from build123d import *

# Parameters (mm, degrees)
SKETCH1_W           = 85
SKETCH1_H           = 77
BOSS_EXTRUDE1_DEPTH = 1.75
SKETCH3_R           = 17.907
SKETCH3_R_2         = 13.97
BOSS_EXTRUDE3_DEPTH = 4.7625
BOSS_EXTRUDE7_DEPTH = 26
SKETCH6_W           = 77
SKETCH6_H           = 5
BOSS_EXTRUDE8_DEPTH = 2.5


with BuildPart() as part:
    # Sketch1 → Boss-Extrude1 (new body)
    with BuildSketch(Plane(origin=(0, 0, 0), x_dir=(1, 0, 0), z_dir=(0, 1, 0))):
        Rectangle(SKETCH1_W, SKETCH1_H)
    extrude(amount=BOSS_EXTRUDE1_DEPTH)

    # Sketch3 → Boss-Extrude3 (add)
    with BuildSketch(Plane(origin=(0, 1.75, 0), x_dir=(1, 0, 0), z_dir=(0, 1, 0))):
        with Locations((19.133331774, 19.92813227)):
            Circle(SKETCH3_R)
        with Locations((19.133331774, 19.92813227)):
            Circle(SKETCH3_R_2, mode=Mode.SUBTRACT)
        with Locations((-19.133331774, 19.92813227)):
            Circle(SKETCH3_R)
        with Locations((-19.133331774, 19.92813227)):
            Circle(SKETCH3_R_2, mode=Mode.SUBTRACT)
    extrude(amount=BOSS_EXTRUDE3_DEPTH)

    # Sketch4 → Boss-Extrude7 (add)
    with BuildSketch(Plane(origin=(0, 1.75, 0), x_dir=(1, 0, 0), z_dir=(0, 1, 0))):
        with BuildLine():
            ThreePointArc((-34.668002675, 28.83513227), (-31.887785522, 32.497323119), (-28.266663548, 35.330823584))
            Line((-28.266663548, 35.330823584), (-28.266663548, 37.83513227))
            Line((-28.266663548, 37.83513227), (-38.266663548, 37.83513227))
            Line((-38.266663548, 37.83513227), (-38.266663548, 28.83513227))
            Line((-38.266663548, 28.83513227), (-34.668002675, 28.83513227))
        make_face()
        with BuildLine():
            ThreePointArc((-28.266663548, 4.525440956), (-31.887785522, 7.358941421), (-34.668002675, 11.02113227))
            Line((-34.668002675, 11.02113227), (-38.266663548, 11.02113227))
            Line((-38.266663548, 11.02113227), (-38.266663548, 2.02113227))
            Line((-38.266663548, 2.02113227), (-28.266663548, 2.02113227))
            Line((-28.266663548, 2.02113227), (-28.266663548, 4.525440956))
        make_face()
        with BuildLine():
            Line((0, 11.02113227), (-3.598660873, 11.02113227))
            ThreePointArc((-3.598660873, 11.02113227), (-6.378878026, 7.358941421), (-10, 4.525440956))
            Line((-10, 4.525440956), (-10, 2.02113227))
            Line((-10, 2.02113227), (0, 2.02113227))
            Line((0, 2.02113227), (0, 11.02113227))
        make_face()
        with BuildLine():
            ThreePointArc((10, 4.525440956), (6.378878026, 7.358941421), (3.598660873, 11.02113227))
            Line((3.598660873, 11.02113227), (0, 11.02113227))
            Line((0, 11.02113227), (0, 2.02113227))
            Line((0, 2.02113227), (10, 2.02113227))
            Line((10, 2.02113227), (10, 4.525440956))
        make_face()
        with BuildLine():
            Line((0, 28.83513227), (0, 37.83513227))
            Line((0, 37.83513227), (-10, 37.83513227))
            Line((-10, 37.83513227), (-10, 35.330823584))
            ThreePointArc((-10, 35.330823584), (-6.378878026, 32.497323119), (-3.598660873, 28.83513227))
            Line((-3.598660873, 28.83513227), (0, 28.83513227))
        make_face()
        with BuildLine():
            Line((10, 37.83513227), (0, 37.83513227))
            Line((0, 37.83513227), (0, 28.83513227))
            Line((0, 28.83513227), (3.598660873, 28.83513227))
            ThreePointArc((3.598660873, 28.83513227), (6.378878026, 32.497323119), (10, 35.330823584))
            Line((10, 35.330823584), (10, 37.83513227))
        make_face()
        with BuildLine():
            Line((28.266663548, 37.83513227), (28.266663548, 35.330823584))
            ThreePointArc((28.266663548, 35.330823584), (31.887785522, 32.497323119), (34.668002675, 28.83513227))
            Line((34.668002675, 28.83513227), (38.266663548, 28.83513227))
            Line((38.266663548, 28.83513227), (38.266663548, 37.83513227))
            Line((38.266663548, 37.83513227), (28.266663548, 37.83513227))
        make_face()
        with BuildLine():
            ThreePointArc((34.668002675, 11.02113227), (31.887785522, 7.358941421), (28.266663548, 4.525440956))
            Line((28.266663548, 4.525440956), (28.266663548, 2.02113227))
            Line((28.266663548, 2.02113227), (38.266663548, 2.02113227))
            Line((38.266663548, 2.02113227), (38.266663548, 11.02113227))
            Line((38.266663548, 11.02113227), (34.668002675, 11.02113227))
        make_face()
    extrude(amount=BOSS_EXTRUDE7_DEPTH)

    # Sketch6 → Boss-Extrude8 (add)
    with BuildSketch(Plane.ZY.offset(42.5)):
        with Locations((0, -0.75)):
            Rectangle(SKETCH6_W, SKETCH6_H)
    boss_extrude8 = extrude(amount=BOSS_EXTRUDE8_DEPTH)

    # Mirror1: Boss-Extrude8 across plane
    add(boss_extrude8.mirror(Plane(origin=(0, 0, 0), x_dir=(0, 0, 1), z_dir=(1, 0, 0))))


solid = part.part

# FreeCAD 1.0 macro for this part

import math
import FreeCAD as App
import Part
import Sketcher
Q = App.Units.Quantity


def add_polygon(sketch, points):
    """Adds a closed chain of lines whose ends are joined by coincident constraints."""
    first, n = sketch.GeometryCount, len(points)
    for a, b in zip(points, points[1:] + points[:1]):
        sketch.addGeometry(Part.LineSegment(App.Vector(*a, 0), App.Vector(*b, 0)), False)
    for i in range(n):
        sketch.addConstraint(Sketcher.Constraint("Coincident", first + i, 2, first + (i + 1) % n, 1))

doc = App.newDocument("Part")
body = doc.addObject("PartDesign::Body", "Body")

# Sketch on XZ plane
sketch1 = body.newObject("Sketcher::SketchObject", "Sketch")
sketch1.AttachmentSupport = (doc.getObject("XZ_Plane"), [""])
sketch1.MapMode = "FlatFace"
add_polygon(sketch1, [(-42, -38), (-42, 38), (42, 38), (42, -38)])  # lines 0-3
sketch1.addConstraint(Sketcher.Constraint("Vertical", 0))
sketch1.addConstraint(Sketcher.Constraint("Horizontal", 1))
sketch1.addConstraint(Sketcher.Constraint("Vertical", 2))
sketch1.addConstraint(Sketcher.Constraint("Horizontal", 3))
sketch1.addConstraint(Sketcher.Constraint("Symmetric", 0, 2, 2, 2, -1, 1))
sketch1.addConstraint(Sketcher.Constraint("DistanceX", 1, 1, 1, 2, Q("85 mm")))
sketch1.addConstraint(Sketcher.Constraint("DistanceY", 0, 1, 0, 2, Q("77 mm")))
pad1 = body.newObject("PartDesign::Pad", "Pad")
pad1.Profile = sketch1
pad1.Length = 1.75
pad1.Reversed = True

# Sketch on XZ plane
sketch2 = body.newObject("Sketcher::SketchObject", "Sketch001")
sketch2.AttachmentSupport = (doc.getObject("XZ_Plane"), [""])
sketch2.MapMode = "FlatFace"
sketch2.AttachmentOffset = App.Placement(App.Vector(0, 0, -1.75), App.Rotation())
sketch2.addGeometry(Part.Circle(App.Vector(19, -20, 0), App.Vector(0, 0, 1), 18), False)
sketch2.addGeometry(Part.Circle(App.Vector(19, -20, 0), App.Vector(0, 0, 1), 14), False)
sketch2.addGeometry(Part.Circle(App.Vector(-19, -20, 0), App.Vector(0, 0, 1), 18), False)
sketch2.addGeometry(Part.Circle(App.Vector(-19, -20, 0), App.Vector(0, 0, 1), 14), False)
sketch2.addConstraint(Sketcher.Constraint("Coincident", 1, 3, 0, 3))
sketch2.addConstraint(Sketcher.Constraint("Coincident", 3, 3, 2, 3))
sketch2.addConstraint(Sketcher.Constraint("Equal", 0, 2))
sketch2.addConstraint(Sketcher.Constraint("Equal", 1, 3))
sketch2.addConstraint(Sketcher.Constraint("Symmetric", 0, 3, 2, 3, -2))
sketch2.addConstraint(Sketcher.Constraint("Diameter", 1, Q("27.94 mm")))
sketch2.addConstraint(Sketcher.Constraint("Diameter", 0, Q("35.814 mm")))
sketch2.addConstraint(Sketcher.Constraint("DistanceX", -1, 1, 0, 3, Q("19.133332 mm")))
sketch2.addConstraint(Sketcher.Constraint("DistanceY", 0, 3, -1, 1, Q("19.928132 mm")))
pad2 = body.newObject("PartDesign::Pad", "Pad001")
pad2.Profile = sketch2
pad2.Length = 4.7625
pad2.Reversed = True

# Sketch on XZ plane
sketch3 = body.newObject("Sketcher::SketchObject", "Sketch002")
sketch3.AttachmentSupport = (doc.getObject("XZ_Plane"), [""])
sketch3.MapMode = "FlatFace"
sketch3.AttachmentOffset = App.Placement(App.Vector(0, 0, -1.75), App.Rotation())
sketch3.addGeometry(Part.ArcOfCircle(Part.Circle(App.Vector(-19.1, -19.9, 0), App.Vector(0, 0, 1), 17.9), math.radians(-150), math.radians(-121)), False)
sketch3.addGeometry(Part.LineSegment(App.Vector(-28.3, -35.3, 0), App.Vector(-28.3, -37.8, 0)), False)
sketch3.addGeometry(Part.LineSegment(App.Vector(-28.3, -37.8, 0), App.Vector(-38.3, -37.8, 0)), False)
sketch3.addGeometry(Part.LineSegment(App.Vector(-38.3, -37.8, 0), App.Vector(-38.3, -28.8, 0)), False)
sketch3.addGeometry(Part.LineSegment(App.Vector(-38.3, -28.8, 0), App.Vector(-34.7, -28.8, 0)), False)
sketch3.addGeometry(Part.ArcOfCircle(Part.Circle(App.Vector(-19.1, -19.9, 0), App.Vector(0, 0, 1), 17.9), math.radians(121), math.radians(150)), False)
sketch3.addGeometry(Part.LineSegment(App.Vector(-34.7, -11, 0), App.Vector(-38.3, -11, 0)), False)
sketch3.addGeometry(Part.LineSegment(App.Vector(-38.3, -11, 0), App.Vector(-38.3, -2, 0)), False)
sketch3.addGeometry(Part.LineSegment(App.Vector(-38.3, -2, 0), App.Vector(-28.3, -2, 0)), False)
sketch3.addGeometry(Part.LineSegment(App.Vector(-28.3, -2, 0), App.Vector(-28.3, -4.5, 0)), False)
sketch3.addGeometry(Part.ArcOfCircle(Part.Circle(App.Vector(-19.1, -19.9, 0), App.Vector(0, 0, 1), 17.9), math.radians(30), math.radians(59)), False)
sketch3.addGeometry(Part.LineSegment(App.Vector(-10, -4.5, 0), App.Vector(-10, -2, 0)), False)
sketch3.addGeometry(Part.LineSegment(App.Vector(-10, -2, 0), App.Vector(10, -2, 0)), False)
sketch3.addGeometry(Part.LineSegment(App.Vector(10, -2, 0), App.Vector(10, -4.5, 0)), False)
sketch3.addGeometry(Part.ArcOfCircle(Part.Circle(App.Vector(19.1, -19.9, 0), App.Vector(0, 0, 1), 17.9), math.radians(121), math.radians(150)), False)
sketch3.addGeometry(Part.LineSegment(App.Vector(3.6, -11, 0), App.Vector(-3.6, -11, 0)), False)
sketch3.addGeometry(Part.LineSegment(App.Vector(-10, -37.8, 0), App.Vector(-10, -35.3, 0)), False)
sketch3.addGeometry(Part.ArcOfCircle(Part.Circle(App.Vector(-19.1, -19.9, 0), App.Vector(0, 0, 1), 17.9), math.radians(-59), math.radians(-30)), False)
sketch3.addGeometry(Part.LineSegment(App.Vector(-3.6, -28.8, 0), App.Vector(3.6, -28.8, 0)), False)
sketch3.addGeometry(Part.ArcOfCircle(Part.Circle(App.Vector(19.1, -19.9, 0), App.Vector(0, 0, 1), 17.9), math.radians(-150), math.radians(-121)), False)
sketch3.addGeometry(Part.LineSegment(App.Vector(10, -35.3, 0), App.Vector(10, -37.8, 0)), False)
sketch3.addGeometry(Part.LineSegment(App.Vector(10, -37.8, 0), App.Vector(-10, -37.8, 0)), False)
sketch3.addGeometry(Part.LineSegment(App.Vector(28.3, -37.8, 0), App.Vector(28.3, -35.3, 0)), False)
sketch3.addGeometry(Part.ArcOfCircle(Part.Circle(App.Vector(19.1, -19.9, 0), App.Vector(0, 0, 1), 17.9), math.radians(-59), math.radians(-30)), False)
sketch3.addGeometry(Part.LineSegment(App.Vector(34.7, -28.8, 0), App.Vector(38.3, -28.8, 0)), False)
sketch3.addGeometry(Part.LineSegment(App.Vector(38.3, -28.8, 0), App.Vector(38.3, -37.8, 0)), False)
sketch3.addGeometry(Part.LineSegment(App.Vector(38.3, -37.8, 0), App.Vector(28.3, -37.8, 0)), False)
sketch3.addGeometry(Part.ArcOfCircle(Part.Circle(App.Vector(19.1, -19.9, 0), App.Vector(0, 0, 1), 17.9), math.radians(30), math.radians(59)), False)
sketch3.addGeometry(Part.LineSegment(App.Vector(28.3, -4.5, 0), App.Vector(28.3, -2, 0)), False)
sketch3.addGeometry(Part.LineSegment(App.Vector(28.3, -2, 0), App.Vector(38.3, -2, 0)), False)
sketch3.addGeometry(Part.LineSegment(App.Vector(38.3, -2, 0), App.Vector(38.3, -11, 0)), False)
sketch3.addGeometry(Part.LineSegment(App.Vector(38.3, -11, 0), App.Vector(34.7, -11, 0)), False)
sketch3.addConstraint(Sketcher.Constraint("Coincident", 0, 2, 1, 1))
sketch3.addConstraint(Sketcher.Constraint("Coincident", 1, 2, 2, 1))
sketch3.addConstraint(Sketcher.Constraint("Coincident", 2, 2, 3, 1))
sketch3.addConstraint(Sketcher.Constraint("Coincident", 3, 2, 4, 1))
sketch3.addConstraint(Sketcher.Constraint("Coincident", 4, 2, 0, 1))
sketch3.addConstraint(Sketcher.Constraint("Coincident", 5, 2, 6, 1))
sketch3.addConstraint(Sketcher.Constraint("Coincident", 6, 2, 7, 1))
sketch3.addConstraint(Sketcher.Constraint("Coincident", 7, 2, 8, 1))
sketch3.addConstraint(Sketcher.Constraint("Coincident", 8, 2, 9, 1))
sketch3.addConstraint(Sketcher.Constraint("Coincident", 9, 2, 5, 1))
sketch3.addConstraint(Sketcher.Constraint("Coincident", 10, 2, 11, 1))
sketch3.addConstraint(Sketcher.Constraint("Coincident", 11, 2, 12, 1))
sketch3.addConstraint(Sketcher.Constraint("Coincident", 12, 2, 13, 1))
sketch3.addConstraint(Sketcher.Constraint("Coincident", 13, 2, 14, 1))
sketch3.addConstraint(Sketcher.Constraint("Coincident", 14, 2, 15, 1))
sketch3.addConstraint(Sketcher.Constraint("Coincident", 15, 2, 10, 1))
sketch3.addConstraint(Sketcher.Constraint("Coincident", 16, 2, 17, 1))
sketch3.addConstraint(Sketcher.Constraint("Coincident", 17, 2, 18, 1))
sketch3.addConstraint(Sketcher.Constraint("Coincident", 18, 2, 19, 1))
sketch3.addConstraint(Sketcher.Constraint("Coincident", 19, 2, 20, 1))
sketch3.addConstraint(Sketcher.Constraint("Coincident", 20, 2, 21, 1))
sketch3.addConstraint(Sketcher.Constraint("Coincident", 21, 2, 16, 1))
sketch3.addConstraint(Sketcher.Constraint("Coincident", 22, 2, 23, 1))
sketch3.addConstraint(Sketcher.Constraint("Coincident", 23, 2, 24, 1))
sketch3.addConstraint(Sketcher.Constraint("Coincident", 24, 2, 25, 1))
sketch3.addConstraint(Sketcher.Constraint("Coincident", 25, 2, 26, 1))
sketch3.addConstraint(Sketcher.Constraint("Coincident", 26, 2, 22, 1))
sketch3.addConstraint(Sketcher.Constraint("Coincident", 27, 2, 28, 1))
sketch3.addConstraint(Sketcher.Constraint("Coincident", 28, 2, 29, 1))
sketch3.addConstraint(Sketcher.Constraint("Coincident", 29, 2, 30, 1))
sketch3.addConstraint(Sketcher.Constraint("Coincident", 30, 2, 31, 1))
sketch3.addConstraint(Sketcher.Constraint("Coincident", 31, 2, 27, 1))
sketch3.addConstraint(Sketcher.Constraint("Vertical", 1))
sketch3.addConstraint(Sketcher.Constraint("Horizontal", 2))
sketch3.addConstraint(Sketcher.Constraint("Vertical", 3))
sketch3.addConstraint(Sketcher.Constraint("Horizontal", 4))
sketch3.addConstraint(Sketcher.Constraint("Horizontal", 6))
sketch3.addConstraint(Sketcher.Constraint("Vertical", 7))
sketch3.addConstraint(Sketcher.Constraint("Horizontal", 8))
sketch3.addConstraint(Sketcher.Constraint("Vertical", 9))
sketch3.addConstraint(Sketcher.Constraint("Vertical", 11))
sketch3.addConstraint(Sketcher.Constraint("Horizontal", 12))
sketch3.addConstraint(Sketcher.Constraint("Vertical", 13))
sketch3.addConstraint(Sketcher.Constraint("Horizontal", 15))
sketch3.addConstraint(Sketcher.Constraint("Vertical", 16))
sketch3.addConstraint(Sketcher.Constraint("Horizontal", 18))
sketch3.addConstraint(Sketcher.Constraint("Vertical", 20))
sketch3.addConstraint(Sketcher.Constraint("Horizontal", 21))
sketch3.addConstraint(Sketcher.Constraint("Vertical", 22))
sketch3.addConstraint(Sketcher.Constraint("Horizontal", 24))
sketch3.addConstraint(Sketcher.Constraint("Vertical", 25))
sketch3.addConstraint(Sketcher.Constraint("Horizontal", 26))
sketch3.addConstraint(Sketcher.Constraint("Vertical", 28))
sketch3.addConstraint(Sketcher.Constraint("Horizontal", 29))
sketch3.addConstraint(Sketcher.Constraint("Vertical", 30))
sketch3.addConstraint(Sketcher.Constraint("Horizontal", 31))
sketch3.addConstraint(Sketcher.Constraint("Coincident", 5, 3, 0, 3))
sketch3.addConstraint(Sketcher.Constraint("Coincident", 10, 3, 0, 3))
sketch3.addConstraint(Sketcher.Constraint("Coincident", 17, 3, 0, 3))
sketch3.addConstraint(Sketcher.Constraint("Coincident", 19, 3, 14, 3))
sketch3.addConstraint(Sketcher.Constraint("Coincident", 23, 3, 14, 3))
sketch3.addConstraint(Sketcher.Constraint("Coincident", 27, 3, 14, 3))
sketch3.addConstraint(Sketcher.Constraint("Equal", 0, 5))
sketch3.addConstraint(Sketcher.Constraint("Equal", 5, 10))
sketch3.addConstraint(Sketcher.Constraint("Equal", 10, 14))
sketch3.addConstraint(Sketcher.Constraint("Equal", 14, 17))
sketch3.addConstraint(Sketcher.Constraint("Equal", 17, 19))
sketch3.addConstraint(Sketcher.Constraint("Equal", 19, 23))
sketch3.addConstraint(Sketcher.Constraint("Equal", 23, 27))
sketch3.addConstraint(Sketcher.Constraint("Symmetric", 0, 3, 14, 3, -2))
sketch3.addConstraint(Sketcher.Constraint("Symmetric", 3, 2, 24, 2, -2))
sketch3.addConstraint(Sketcher.Constraint("Symmetric", 1, 2, 26, 2, -2))
sketch3.addConstraint(Sketcher.Constraint("Symmetric", 8, 2, 28, 2, -2))
sketch3.addConstraint(Sketcher.Constraint("Symmetric", 6, 2, 30, 2, -2))
sketch3.addConstraint(Sketcher.Constraint("Horizontal", 9, 2, 10, 2))
sketch3.addConstraint(Sketcher.Constraint("Horizontal", 8, 2, 11, 2))
sketch3.addConstraint(Sketcher.Constraint("Horizontal", 10, 2, 13, 2))
sketch3.addConstraint(Sketcher.Constraint("Horizontal", 6, 2, 14, 2))
sketch3.addConstraint(Sketcher.Constraint("Horizontal", 0, 2, 16, 2))
sketch3.addConstraint(Sketcher.Constraint("Horizontal", 4, 2, 17, 2))
sketch3.addConstraint(Sketcher.Constraint("Horizontal", 16, 2, 19, 2))
sketch3.addConstraint(Sketcher.Constraint("Horizontal", 2, 2, 20, 2))
sketch3.addConstraint(Sketcher.Constraint("Vertical", 4, 2, 5, 2))
sketch3.addConstraint(Sketcher.Constraint("Vertical", 3, 2, 6, 2))
sketch3.addConstraint(Sketcher.Constraint("Vertical", 1, 2, 8, 2))
sketch3.addConstraint(Sketcher.Constraint("Equal", 3, 7))
sketch3.addConstraint(Sketcher.Constraint("DistanceX", 2, 2, 2, 1, Q("10 mm")))
sketch3.addConstraint(Sketcher.Constraint("DistanceX", 12, 1, 12, 2, Q("20 mm")))
sketch3.addConstraint(Sketcher.Constraint("DistanceY", 3, 1, 3, 2, Q("9 mm")))
sketch3.addConstraint(Sketcher.Constraint("Radius", 0, Q("17.907 mm")))
sketch3.addConstraint(Sketcher.Constraint("DistanceY", 1, 2, 0, 3, Q("17.907 mm")))
sketch3.addConstraint(Sketcher.Constraint("DistanceX", 4, 1, 4, 2, Q("3.598661 mm")))
sketch3.addConstraint(Sketcher.Constraint("DistanceY", 9, 2, -1, 1, Q("4.525441 mm")))
pad3 = body.newObject("PartDesign::Pad", "Pad002")
pad3.Profile = sketch3
pad3.Length = 26
pad3.Reversed = True

# Sketch on YZ plane
sketch4 = body.newObject("Sketcher::SketchObject", "Sketch003")
sketch4.AttachmentSupport = (doc.getObject("YZ_Plane"), [""])
sketch4.MapMode = "FlatFace"
sketch4.AttachmentOffset = App.Placement(App.Vector(0, 0, -42.5), App.Rotation())
add_polygon(sketch4, [(2, -38), (-3, -38), (-3, 38), (2, 38)])  # lines 0-3
sketch4.addConstraint(Sketcher.Constraint("Horizontal", 0))
sketch4.addConstraint(Sketcher.Constraint("Vertical", 1))
sketch4.addConstraint(Sketcher.Constraint("Horizontal", 2))
sketch4.addConstraint(Sketcher.Constraint("Vertical", 3))
sketch4.addConstraint(Sketcher.Constraint("DistanceX", 0, 2, 0, 1, Q("5 mm")))
sketch4.addConstraint(Sketcher.Constraint("DistanceY", 1, 1, 1, 2, Q("77 mm")))
sketch4.addConstraint(Sketcher.Constraint("DistanceY", 0, 2, -1, 1, Q("38.5 mm")))
sketch4.addConstraint(Sketcher.Constraint("DistanceX", 0, 2, -1, 1, Q("3.25 mm")))
pad4 = body.newObject("PartDesign::Pad", "Pad003")
pad4.Profile = sketch4
pad4.Length = 2.5
pad4.Reversed = True
doc.recompute()

mirrored = body.newObject("PartDesign::Mirrored", "Mirrored")
mirrored.Originals = [pad4]
mirrored.MirrorPlane = (doc.getObject("YZ_Plane"), [""])
body.Tip = mirrored

doc.recompute()
